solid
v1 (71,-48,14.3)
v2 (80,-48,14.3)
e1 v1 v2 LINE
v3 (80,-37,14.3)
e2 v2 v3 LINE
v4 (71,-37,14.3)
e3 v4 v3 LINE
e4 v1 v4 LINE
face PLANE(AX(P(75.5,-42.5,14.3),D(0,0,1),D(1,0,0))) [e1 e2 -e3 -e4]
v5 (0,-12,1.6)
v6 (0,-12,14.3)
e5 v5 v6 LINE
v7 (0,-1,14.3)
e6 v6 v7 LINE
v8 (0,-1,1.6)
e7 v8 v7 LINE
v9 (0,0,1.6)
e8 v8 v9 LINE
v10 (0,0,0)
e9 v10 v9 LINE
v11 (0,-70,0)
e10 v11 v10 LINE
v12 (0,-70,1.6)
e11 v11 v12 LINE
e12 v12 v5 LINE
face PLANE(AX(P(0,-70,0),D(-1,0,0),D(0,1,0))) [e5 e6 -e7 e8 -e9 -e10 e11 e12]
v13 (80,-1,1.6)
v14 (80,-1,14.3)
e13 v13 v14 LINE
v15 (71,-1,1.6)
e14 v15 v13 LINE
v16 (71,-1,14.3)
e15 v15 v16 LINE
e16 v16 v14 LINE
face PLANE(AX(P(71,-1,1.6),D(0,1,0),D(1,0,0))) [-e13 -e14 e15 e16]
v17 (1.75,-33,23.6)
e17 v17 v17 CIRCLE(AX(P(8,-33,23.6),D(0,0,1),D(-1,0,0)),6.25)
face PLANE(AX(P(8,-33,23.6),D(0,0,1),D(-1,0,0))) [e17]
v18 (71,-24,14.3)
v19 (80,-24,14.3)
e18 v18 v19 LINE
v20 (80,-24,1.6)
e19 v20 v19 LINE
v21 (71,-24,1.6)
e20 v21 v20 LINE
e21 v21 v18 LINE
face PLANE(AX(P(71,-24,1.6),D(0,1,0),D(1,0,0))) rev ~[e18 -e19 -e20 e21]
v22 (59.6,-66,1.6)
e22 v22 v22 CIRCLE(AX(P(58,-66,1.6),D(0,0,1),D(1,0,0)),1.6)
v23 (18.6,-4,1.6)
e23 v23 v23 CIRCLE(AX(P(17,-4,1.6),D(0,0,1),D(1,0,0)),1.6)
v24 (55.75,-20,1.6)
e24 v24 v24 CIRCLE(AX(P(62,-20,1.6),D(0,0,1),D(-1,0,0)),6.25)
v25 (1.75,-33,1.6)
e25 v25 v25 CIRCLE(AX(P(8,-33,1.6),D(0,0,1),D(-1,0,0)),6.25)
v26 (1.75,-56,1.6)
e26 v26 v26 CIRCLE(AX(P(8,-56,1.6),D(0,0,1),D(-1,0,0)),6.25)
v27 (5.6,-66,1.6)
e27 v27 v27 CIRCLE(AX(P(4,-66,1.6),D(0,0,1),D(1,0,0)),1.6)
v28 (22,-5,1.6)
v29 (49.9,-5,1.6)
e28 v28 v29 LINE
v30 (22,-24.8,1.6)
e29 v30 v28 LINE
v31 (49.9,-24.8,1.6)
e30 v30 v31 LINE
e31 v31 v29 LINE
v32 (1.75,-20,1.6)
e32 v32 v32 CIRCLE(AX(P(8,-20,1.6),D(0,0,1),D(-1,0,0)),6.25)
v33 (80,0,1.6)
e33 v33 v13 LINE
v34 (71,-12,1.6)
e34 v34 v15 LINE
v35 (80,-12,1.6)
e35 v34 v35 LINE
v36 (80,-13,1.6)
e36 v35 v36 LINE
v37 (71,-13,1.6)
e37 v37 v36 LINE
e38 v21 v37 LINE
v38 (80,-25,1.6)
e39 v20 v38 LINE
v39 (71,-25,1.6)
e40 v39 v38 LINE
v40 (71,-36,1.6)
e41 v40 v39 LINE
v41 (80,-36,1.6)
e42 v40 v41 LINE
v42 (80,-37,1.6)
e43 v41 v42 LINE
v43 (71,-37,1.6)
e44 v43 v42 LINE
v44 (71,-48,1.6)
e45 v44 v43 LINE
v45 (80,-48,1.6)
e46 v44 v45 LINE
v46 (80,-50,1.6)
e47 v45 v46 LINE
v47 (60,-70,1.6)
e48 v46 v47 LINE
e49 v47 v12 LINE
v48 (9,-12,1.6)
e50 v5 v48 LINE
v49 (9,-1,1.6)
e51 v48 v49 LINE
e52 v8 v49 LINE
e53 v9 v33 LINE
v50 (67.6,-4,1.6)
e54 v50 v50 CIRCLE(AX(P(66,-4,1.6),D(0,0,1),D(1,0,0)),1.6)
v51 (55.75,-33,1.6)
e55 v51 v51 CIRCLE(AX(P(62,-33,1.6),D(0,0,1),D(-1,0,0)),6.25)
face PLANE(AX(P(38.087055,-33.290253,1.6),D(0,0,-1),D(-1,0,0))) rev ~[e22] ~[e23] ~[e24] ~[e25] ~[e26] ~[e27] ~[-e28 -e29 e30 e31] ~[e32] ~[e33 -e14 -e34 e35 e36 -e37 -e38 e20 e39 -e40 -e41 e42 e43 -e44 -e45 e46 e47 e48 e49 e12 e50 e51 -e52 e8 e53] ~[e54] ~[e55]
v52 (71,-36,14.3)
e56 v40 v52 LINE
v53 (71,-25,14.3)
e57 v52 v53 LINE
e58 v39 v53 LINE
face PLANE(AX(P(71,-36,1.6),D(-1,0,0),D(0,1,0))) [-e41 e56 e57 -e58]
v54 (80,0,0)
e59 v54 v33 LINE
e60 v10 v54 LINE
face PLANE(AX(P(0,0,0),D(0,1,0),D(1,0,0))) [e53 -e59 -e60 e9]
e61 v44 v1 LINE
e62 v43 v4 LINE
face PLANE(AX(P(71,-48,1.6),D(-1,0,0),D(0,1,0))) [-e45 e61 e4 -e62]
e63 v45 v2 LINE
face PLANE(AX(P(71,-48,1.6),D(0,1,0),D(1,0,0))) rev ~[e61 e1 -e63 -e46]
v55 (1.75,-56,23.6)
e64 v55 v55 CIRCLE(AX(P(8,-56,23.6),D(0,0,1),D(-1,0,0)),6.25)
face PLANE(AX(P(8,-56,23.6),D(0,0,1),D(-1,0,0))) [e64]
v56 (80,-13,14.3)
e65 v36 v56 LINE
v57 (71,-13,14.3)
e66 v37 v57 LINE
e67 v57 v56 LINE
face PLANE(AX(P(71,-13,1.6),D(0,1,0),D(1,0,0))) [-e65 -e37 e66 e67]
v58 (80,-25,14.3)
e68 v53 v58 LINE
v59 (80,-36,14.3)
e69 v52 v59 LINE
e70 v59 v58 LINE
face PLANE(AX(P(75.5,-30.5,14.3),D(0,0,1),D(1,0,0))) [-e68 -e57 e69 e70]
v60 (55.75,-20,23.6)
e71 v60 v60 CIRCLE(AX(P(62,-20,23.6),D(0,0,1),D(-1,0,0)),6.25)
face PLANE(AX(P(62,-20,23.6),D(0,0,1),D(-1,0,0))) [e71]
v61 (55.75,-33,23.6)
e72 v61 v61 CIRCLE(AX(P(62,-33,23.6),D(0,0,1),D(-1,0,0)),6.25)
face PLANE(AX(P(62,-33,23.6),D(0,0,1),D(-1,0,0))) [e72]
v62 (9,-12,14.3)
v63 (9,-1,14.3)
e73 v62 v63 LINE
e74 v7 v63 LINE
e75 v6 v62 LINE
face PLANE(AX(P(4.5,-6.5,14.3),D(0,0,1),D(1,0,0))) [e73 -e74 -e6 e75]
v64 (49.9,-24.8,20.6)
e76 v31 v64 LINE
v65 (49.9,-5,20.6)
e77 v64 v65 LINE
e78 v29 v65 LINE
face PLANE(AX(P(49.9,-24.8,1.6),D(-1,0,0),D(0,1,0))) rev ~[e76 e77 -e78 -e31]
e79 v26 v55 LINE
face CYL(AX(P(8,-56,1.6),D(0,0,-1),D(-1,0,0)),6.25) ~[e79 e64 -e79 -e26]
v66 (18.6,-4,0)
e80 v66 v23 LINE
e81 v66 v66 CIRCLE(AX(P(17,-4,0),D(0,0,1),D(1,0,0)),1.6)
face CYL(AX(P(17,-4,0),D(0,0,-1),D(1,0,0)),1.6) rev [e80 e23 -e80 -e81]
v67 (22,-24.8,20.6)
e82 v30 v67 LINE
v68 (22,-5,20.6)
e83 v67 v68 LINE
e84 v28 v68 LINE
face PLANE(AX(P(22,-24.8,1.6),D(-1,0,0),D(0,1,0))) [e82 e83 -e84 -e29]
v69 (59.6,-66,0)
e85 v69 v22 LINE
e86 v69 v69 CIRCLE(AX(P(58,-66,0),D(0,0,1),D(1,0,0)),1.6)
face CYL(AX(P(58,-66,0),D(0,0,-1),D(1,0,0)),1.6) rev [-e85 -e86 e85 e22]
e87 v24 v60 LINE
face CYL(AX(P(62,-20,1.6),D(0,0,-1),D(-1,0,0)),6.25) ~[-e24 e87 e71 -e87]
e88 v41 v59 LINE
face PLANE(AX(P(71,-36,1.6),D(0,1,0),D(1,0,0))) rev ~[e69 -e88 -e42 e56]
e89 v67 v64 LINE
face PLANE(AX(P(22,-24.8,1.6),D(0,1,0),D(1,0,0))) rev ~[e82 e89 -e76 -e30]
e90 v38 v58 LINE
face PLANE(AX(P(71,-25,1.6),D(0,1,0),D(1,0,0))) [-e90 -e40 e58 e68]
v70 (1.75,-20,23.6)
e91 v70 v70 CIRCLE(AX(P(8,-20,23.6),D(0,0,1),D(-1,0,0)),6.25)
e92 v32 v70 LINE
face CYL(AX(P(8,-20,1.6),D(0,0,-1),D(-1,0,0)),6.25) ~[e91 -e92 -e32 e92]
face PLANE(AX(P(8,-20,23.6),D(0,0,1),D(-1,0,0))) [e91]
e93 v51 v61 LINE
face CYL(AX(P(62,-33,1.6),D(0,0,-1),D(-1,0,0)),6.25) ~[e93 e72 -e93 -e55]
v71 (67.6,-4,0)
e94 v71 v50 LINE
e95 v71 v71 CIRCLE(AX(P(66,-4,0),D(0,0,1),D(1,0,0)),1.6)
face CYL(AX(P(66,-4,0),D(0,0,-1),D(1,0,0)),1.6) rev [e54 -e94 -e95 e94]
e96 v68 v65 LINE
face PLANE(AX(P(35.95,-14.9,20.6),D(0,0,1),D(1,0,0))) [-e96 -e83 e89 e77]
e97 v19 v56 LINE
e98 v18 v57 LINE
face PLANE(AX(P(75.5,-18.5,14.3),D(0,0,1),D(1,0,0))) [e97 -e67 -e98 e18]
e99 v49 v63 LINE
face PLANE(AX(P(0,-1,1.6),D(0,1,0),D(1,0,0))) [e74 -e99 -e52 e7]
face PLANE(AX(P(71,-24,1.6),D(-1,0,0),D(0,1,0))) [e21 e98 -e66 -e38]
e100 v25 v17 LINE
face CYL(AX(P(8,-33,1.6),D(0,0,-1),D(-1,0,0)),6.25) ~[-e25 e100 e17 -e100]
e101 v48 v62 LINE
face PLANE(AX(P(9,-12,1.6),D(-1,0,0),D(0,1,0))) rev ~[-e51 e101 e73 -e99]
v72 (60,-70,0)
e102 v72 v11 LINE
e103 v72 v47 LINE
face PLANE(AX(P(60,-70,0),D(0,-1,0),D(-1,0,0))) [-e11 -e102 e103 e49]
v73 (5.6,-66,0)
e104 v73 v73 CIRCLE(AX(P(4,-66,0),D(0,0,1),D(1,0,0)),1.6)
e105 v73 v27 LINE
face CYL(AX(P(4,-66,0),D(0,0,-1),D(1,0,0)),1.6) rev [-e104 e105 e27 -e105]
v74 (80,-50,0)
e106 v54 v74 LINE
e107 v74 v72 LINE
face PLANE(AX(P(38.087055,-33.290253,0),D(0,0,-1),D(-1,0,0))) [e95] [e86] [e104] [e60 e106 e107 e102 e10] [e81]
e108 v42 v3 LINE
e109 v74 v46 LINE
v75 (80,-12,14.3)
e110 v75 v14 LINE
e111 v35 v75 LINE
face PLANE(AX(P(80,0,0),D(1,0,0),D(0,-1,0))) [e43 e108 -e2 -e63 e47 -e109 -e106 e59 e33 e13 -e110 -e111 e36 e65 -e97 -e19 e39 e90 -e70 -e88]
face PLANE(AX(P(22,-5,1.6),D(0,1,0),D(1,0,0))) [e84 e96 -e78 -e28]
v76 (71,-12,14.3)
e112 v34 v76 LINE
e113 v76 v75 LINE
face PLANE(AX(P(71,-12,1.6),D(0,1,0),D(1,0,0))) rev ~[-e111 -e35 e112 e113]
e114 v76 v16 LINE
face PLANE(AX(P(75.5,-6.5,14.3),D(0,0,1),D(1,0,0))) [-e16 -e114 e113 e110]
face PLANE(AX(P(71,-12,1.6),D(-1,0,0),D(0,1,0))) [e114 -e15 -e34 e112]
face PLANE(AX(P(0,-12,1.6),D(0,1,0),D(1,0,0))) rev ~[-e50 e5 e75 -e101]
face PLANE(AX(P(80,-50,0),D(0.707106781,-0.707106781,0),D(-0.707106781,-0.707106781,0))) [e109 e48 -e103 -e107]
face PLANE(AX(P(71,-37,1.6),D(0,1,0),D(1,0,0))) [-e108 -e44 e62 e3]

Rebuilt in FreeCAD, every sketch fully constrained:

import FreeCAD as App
import Part
import Sketcher

V = App.Vector

doc = App.newDocument("Part")
body = doc.addObject("PartDesign::Body", "Body")

# Sketch on XY plane
sketch1 = body.newObject("Sketcher::SketchObject", "Sketch")
sketch1.AttachmentSupport = (doc.getObject("XY_Plane"), [""])
sketch1.MapMode = "FlatFace"
sketch1.addGeometry([
    Part.LineSegment(V(80, 0, 0), V(0, 0, 0)),  # 0
    Part.LineSegment(V(0, 0, 0), V(0, -70, 0)),  # 1
    Part.LineSegment(V(0, -70, 0), V(60, -70, 0)),  # 2
    Part.LineSegment(V(60, -70, 0), V(80, -50, 0)),  # 3
    Part.LineSegment(V(80, -50, 0), V(80, 0, 0)),  # 4
    Part.Circle(V(58, -66, 0), V(0, 0, 1), 1.6),  # 5
    Part.Circle(V(4, -66, 0), V(0, 0, 1), 1.6),  # 6
    Part.Circle(V(66, -4, 0), V(0, 0, 1), 1.6),  # 7
    Part.Circle(V(17, -4, 0), V(0, 0, 1), 1.6),  # 8
], False)
sketch1.addConstraint([
    Sketcher.Constraint("Coincident", 0, 2, 1, 1),
    Sketcher.Constraint("Coincident", 1, 2, 2, 1),
    Sketcher.Constraint("Coincident", 2, 2, 3, 1),
    Sketcher.Constraint("Coincident", 3, 2, 4, 1),
    Sketcher.Constraint("Coincident", 4, 2, 0, 1),
    Sketcher.Constraint("Horizontal", 0),
    Sketcher.Constraint("Vertical", 1),
    Sketcher.Constraint("Horizontal", 2),
    Sketcher.Constraint("Vertical", 4),
    Sketcher.Constraint("Coincident", 0, 2, -1, 1),
    Sketcher.Constraint("Equal", 5, 6),
    Sketcher.Constraint("Equal", 6, 7),
    Sketcher.Constraint("Equal", 7, 8),
    Sketcher.Constraint("Horizontal", 5, 3, 6, 3),
    Sketcher.Constraint("Horizontal", 7, 3, 8, 3),
    Sketcher.Constraint("Diameter", 5, 3.2),
    Sketcher.Constraint("DistanceX", 0, 2, 0, 1, 80.0),
    Sketcher.Constraint("DistanceX", 2, 1, 2, 2, 60.0),
    Sketcher.Constraint("DistanceY", 1, 2, 1, 1, 70.0),
    Sketcher.Constraint("DistanceY", 4, 1, 4, 2, 50.0),
    Sketcher.Constraint("DistanceX", -1, 1, 5, 3, 58.0),
    Sketcher.Constraint("DistanceY", 5, 3, -1, 1, 66.0),
    Sketcher.Constraint("DistanceX", -1, 1, 6, 3, 4.0),
    Sketcher.Constraint("DistanceX", -1, 1, 7, 3, 66.0),
    Sketcher.Constraint("DistanceY", 7, 3, -1, 1, 4.0),
    Sketcher.Constraint("DistanceX", -1, 1, 8, 3, 17.0),
])
pad1 = body.newObject("PartDesign::Pad", "Pad")
pad1.Profile = sketch1
pad1.Length = 1.6

# Sketch on XY plane
sketch2 = body.newObject("Sketcher::SketchObject", "Sketch001")
sketch2.AttachmentSupport = (doc.getObject("XY_Plane"), [""])
sketch2.MapMode = "FlatFace"
sketch2.AttachmentOffset = App.Placement(V(0, 0, 1.6), App.Rotation())
sketch2.addGeometry([
    Part.LineSegment(V(0, -1, 0), V(0, -12, 0)),  # 0
    Part.LineSegment(V(0, -12, 0), V(9, -12, 0)),  # 1
    Part.LineSegment(V(9, -12, 0), V(9, -1, 0)),  # 2
    Part.LineSegment(V(9, -1, 0), V(0, -1, 0)),  # 3
    Part.LineSegment(V(71, -1, 0), V(71, -12, 0)),  # 4
    Part.LineSegment(V(71, -12, 0), V(80, -12, 0)),  # 5
    Part.LineSegment(V(80, -12, 0), V(80, -1, 0)),  # 6
    Part.LineSegment(V(80, -1, 0), V(71, -1, 0)),  # 7
    Part.LineSegment(V(71, -13, 0), V(71, -24, 0)),  # 8
    Part.LineSegment(V(71, -24, 0), V(80, -24, 0)),  # 9
    Part.LineSegment(V(80, -24, 0), V(80, -13, 0)),  # 10
    Part.LineSegment(V(80, -13, 0), V(71, -13, 0)),  # 11
    Part.LineSegment(V(71, -25, 0), V(71, -36, 0)),  # 12
    Part.LineSegment(V(71, -36, 0), V(80, -36, 0)),  # 13
    Part.LineSegment(V(80, -36, 0), V(80, -25, 0)),  # 14
    Part.LineSegment(V(80, -25, 0), V(71, -25, 0)),  # 15
    Part.LineSegment(V(71, -37, 0), V(71, -48, 0)),  # 16
    Part.LineSegment(V(71, -48, 0), V(80, -48, 0)),  # 17
    Part.LineSegment(V(80, -48, 0), V(80, -37, 0)),  # 18
    Part.LineSegment(V(80, -37, 0), V(71, -37, 0)),  # 19
], False)
sketch2.addConstraint([
    Sketcher.Constraint("Coincident", 0, 2, 1, 1),
    Sketcher.Constraint("Coincident", 1, 2, 2, 1),
    Sketcher.Constraint("Coincident", 2, 2, 3, 1),
    Sketcher.Constraint("Coincident", 3, 2, 0, 1),
    Sketcher.Constraint("Coincident", 4, 2, 5, 1),
    Sketcher.Constraint("Coincident", 5, 2, 6, 1),
    Sketcher.Constraint("Coincident", 6, 2, 7, 1),
    Sketcher.Constraint("Coincident", 7, 2, 4, 1),
    Sketcher.Constraint("Coincident", 8, 2, 9, 1),
    Sketcher.Constraint("Coincident", 9, 2, 10, 1),
    Sketcher.Constraint("Coincident", 10, 2, 11, 1),
    Sketcher.Constraint("Coincident", 11, 2, 8, 1),
    Sketcher.Constraint("Coincident", 12, 2, 13, 1),
    Sketcher.Constraint("Coincident", 13, 2, 14, 1),
    Sketcher.Constraint("Coincident", 14, 2, 15, 1),
    Sketcher.Constraint("Coincident", 15, 2, 12, 1),
    Sketcher.Constraint("Coincident", 16, 2, 17, 1),
    Sketcher.Constraint("Coincident", 17, 2, 18, 1),
    Sketcher.Constraint("Coincident", 18, 2, 19, 1),
    Sketcher.Constraint("Coincident", 19, 2, 16, 1),
    Sketcher.Constraint("Vertical", 0),
    Sketcher.Constraint("Horizontal", 1),
    Sketcher.Constraint("Vertical", 2),
    Sketcher.Constraint("Horizontal", 3),
    Sketcher.Constraint("Vertical", 4),
    Sketcher.Constraint("Horizontal", 5),
    Sketcher.Constraint("Vertical", 6),
    Sketcher.Constraint("Horizontal", 7),
    Sketcher.Constraint("Vertical", 8),
    Sketcher.Constraint("Horizontal", 9),
    Sketcher.Constraint("Vertical", 10),
    Sketcher.Constraint("Horizontal", 11),
    Sketcher.Constraint("Vertical", 12),
    Sketcher.Constraint("Horizontal", 13),
    Sketcher.Constraint("Vertical", 14),
    Sketcher.Constraint("Horizontal", 15),
    Sketcher.Constraint("Vertical", 16),
    Sketcher.Constraint("Horizontal", 17),
    Sketcher.Constraint("Vertical", 18),
    Sketcher.Constraint("Horizontal", 19),
    Sketcher.Constraint("PointOnObject", 0, 2, -2),
    Sketcher.Constraint("Horizontal", 1, 2, 4, 2),
    Sketcher.Constraint("Horizontal", 3, 2, 6, 2),
    Sketcher.Constraint("Vertical", 7, 2, 8, 2),
    Sketcher.Constraint("Vertical", 6, 2, 9, 2),
    Sketcher.Constraint("Vertical", 11, 2, 12, 2),
    Sketcher.Constraint("Vertical", 10, 2, 13, 2),
    Sketcher.Constraint("Vertical", 15, 2, 16, 2),
    Sketcher.Constraint("Vertical", 14, 2, 17, 2),
    Sketcher.Constraint("Equal", 3, 5),
    Sketcher.Constraint("Equal", 6, 8),
    Sketcher.Constraint("Equal", 10, 12),
    Sketcher.Constraint("Equal", 14, 16),
    Sketcher.Constraint("DistanceX", 1, 1, 1, 2, 9.0),
    Sketcher.Constraint("DistanceY", 0, 2, 0, 1, 11.0),
    Sketcher.Constraint("DistanceY", 0, 2, -1, 1, 12.0),
    Sketcher.Constraint("DistanceX", -1, 1, 4, 2, 71.0),
    Sketcher.Constraint("DistanceY", 8, 2, -1, 1, 24.0),
    Sketcher.Constraint("DistanceY", 12, 2, -1, 1, 36.0),
    Sketcher.Constraint("DistanceY", 16, 2, -1, 1, 48.0),
])
pad2 = body.newObject("PartDesign::Pad", "Pad001")
pad2.Profile = sketch2
pad2.Length = 12.7

# Sketch on XY plane
sketch3 = body.newObject("Sketcher::SketchObject", "Sketch002")
sketch3.AttachmentSupport = (doc.getObject("XY_Plane"), [""])
sketch3.MapMode = "FlatFace"
sketch3.AttachmentOffset = App.Placement(V(0, 0, 1.6), App.Rotation())
sketch3.addGeometry([
    Part.Circle(V(8, -20, 0), V(0, 0, 1), 6),  # 0
    Part.Circle(V(8, -33, 0), V(0, 0, 1), 6),  # 1
    Part.Circle(V(8, -56, 0), V(0, 0, 1), 6),  # 2
    Part.Circle(V(62, -20, 0), V(0, 0, 1), 6),  # 3
    Part.Circle(V(62, -33, 0), V(0, 0, 1), 6),  # 4
], False)
sketch3.addConstraint([
    Sketcher.Constraint("Equal", 0, 1),
    Sketcher.Constraint("Equal", 1, 2),
    Sketcher.Constraint("Equal", 2, 3),
    Sketcher.Constraint("Equal", 3, 4),
    Sketcher.Constraint("Horizontal", 0, 3, 3, 3),
    Sketcher.Constraint("Horizontal", 1, 3, 4, 3),
    Sketcher.Constraint("Vertical", 0, 3, 1, 3),
    Sketcher.Constraint("Vertical", 1, 3, 2, 3),
    Sketcher.Constraint("Vertical", 3, 3, 4, 3),
    Sketcher.Constraint("Diameter", 0, 12.5),
    Sketcher.Constraint("DistanceX", -1, 1, 0, 3, 8.0),
    Sketcher.Constraint("DistanceY", 0, 3, -1, 1, 20.0),
    Sketcher.Constraint("DistanceY", 1, 3, -1, 1, 33.0),
    Sketcher.Constraint("DistanceY", 2, 3, -1, 1, 56.0),
    Sketcher.Constraint("DistanceX", -1, 1, 3, 3, 62.0),
])
pad3 = body.newObject("PartDesign::Pad", "Pad002")
pad3.Profile = sketch3
pad3.Length = 22

# Sketch on XY plane
sketch4 = body.newObject("Sketcher::SketchObject", "Sketch003")
sketch4.AttachmentSupport = (doc.getObject("XY_Plane"), [""])
sketch4.MapMode = "FlatFace"
sketch4.AttachmentOffset = App.Placement(V(0, 0, 1.6), App.Rotation())
sketch4.addGeometry([
    Part.LineSegment(V(22, -5, 0), V(22, -25, 0)),
    Part.LineSegment(V(22, -25, 0), V(50, -25, 0)),
    Part.LineSegment(V(50, -25, 0), V(50, -5, 0)),
    Part.LineSegment(V(50, -5, 0), V(22, -5, 0)),
], False)
sketch4.addConstraint([
    Sketcher.Constraint("Coincident", 0, 2, 1, 1),
    Sketcher.Constraint("Coincident", 1, 2, 2, 1),
    Sketcher.Constraint("Coincident", 2, 2, 3, 1),
    Sketcher.Constraint("Coincident", 3, 2, 0, 1),
    Sketcher.Constraint("Vertical", 0),
    Sketcher.Constraint("Horizontal", 1),
    Sketcher.Constraint("Vertical", 2),
    Sketcher.Constraint("Horizontal", 3),
    Sketcher.Constraint("DistanceX", 1, 1, 1, 2, 27.9),
    Sketcher.Constraint("DistanceY", 0, 2, 0, 1, 19.8),
    Sketcher.Constraint("DistanceX", -1, 1, 0, 2, 22.0),
    Sketcher.Constraint("DistanceY", 2, 2, -1, 1, 5.0),
])
pad4 = body.newObject("PartDesign::Pad", "Pad003")
pad4.Profile = sketch4
pad4.Length = 19

doc.recompute()
